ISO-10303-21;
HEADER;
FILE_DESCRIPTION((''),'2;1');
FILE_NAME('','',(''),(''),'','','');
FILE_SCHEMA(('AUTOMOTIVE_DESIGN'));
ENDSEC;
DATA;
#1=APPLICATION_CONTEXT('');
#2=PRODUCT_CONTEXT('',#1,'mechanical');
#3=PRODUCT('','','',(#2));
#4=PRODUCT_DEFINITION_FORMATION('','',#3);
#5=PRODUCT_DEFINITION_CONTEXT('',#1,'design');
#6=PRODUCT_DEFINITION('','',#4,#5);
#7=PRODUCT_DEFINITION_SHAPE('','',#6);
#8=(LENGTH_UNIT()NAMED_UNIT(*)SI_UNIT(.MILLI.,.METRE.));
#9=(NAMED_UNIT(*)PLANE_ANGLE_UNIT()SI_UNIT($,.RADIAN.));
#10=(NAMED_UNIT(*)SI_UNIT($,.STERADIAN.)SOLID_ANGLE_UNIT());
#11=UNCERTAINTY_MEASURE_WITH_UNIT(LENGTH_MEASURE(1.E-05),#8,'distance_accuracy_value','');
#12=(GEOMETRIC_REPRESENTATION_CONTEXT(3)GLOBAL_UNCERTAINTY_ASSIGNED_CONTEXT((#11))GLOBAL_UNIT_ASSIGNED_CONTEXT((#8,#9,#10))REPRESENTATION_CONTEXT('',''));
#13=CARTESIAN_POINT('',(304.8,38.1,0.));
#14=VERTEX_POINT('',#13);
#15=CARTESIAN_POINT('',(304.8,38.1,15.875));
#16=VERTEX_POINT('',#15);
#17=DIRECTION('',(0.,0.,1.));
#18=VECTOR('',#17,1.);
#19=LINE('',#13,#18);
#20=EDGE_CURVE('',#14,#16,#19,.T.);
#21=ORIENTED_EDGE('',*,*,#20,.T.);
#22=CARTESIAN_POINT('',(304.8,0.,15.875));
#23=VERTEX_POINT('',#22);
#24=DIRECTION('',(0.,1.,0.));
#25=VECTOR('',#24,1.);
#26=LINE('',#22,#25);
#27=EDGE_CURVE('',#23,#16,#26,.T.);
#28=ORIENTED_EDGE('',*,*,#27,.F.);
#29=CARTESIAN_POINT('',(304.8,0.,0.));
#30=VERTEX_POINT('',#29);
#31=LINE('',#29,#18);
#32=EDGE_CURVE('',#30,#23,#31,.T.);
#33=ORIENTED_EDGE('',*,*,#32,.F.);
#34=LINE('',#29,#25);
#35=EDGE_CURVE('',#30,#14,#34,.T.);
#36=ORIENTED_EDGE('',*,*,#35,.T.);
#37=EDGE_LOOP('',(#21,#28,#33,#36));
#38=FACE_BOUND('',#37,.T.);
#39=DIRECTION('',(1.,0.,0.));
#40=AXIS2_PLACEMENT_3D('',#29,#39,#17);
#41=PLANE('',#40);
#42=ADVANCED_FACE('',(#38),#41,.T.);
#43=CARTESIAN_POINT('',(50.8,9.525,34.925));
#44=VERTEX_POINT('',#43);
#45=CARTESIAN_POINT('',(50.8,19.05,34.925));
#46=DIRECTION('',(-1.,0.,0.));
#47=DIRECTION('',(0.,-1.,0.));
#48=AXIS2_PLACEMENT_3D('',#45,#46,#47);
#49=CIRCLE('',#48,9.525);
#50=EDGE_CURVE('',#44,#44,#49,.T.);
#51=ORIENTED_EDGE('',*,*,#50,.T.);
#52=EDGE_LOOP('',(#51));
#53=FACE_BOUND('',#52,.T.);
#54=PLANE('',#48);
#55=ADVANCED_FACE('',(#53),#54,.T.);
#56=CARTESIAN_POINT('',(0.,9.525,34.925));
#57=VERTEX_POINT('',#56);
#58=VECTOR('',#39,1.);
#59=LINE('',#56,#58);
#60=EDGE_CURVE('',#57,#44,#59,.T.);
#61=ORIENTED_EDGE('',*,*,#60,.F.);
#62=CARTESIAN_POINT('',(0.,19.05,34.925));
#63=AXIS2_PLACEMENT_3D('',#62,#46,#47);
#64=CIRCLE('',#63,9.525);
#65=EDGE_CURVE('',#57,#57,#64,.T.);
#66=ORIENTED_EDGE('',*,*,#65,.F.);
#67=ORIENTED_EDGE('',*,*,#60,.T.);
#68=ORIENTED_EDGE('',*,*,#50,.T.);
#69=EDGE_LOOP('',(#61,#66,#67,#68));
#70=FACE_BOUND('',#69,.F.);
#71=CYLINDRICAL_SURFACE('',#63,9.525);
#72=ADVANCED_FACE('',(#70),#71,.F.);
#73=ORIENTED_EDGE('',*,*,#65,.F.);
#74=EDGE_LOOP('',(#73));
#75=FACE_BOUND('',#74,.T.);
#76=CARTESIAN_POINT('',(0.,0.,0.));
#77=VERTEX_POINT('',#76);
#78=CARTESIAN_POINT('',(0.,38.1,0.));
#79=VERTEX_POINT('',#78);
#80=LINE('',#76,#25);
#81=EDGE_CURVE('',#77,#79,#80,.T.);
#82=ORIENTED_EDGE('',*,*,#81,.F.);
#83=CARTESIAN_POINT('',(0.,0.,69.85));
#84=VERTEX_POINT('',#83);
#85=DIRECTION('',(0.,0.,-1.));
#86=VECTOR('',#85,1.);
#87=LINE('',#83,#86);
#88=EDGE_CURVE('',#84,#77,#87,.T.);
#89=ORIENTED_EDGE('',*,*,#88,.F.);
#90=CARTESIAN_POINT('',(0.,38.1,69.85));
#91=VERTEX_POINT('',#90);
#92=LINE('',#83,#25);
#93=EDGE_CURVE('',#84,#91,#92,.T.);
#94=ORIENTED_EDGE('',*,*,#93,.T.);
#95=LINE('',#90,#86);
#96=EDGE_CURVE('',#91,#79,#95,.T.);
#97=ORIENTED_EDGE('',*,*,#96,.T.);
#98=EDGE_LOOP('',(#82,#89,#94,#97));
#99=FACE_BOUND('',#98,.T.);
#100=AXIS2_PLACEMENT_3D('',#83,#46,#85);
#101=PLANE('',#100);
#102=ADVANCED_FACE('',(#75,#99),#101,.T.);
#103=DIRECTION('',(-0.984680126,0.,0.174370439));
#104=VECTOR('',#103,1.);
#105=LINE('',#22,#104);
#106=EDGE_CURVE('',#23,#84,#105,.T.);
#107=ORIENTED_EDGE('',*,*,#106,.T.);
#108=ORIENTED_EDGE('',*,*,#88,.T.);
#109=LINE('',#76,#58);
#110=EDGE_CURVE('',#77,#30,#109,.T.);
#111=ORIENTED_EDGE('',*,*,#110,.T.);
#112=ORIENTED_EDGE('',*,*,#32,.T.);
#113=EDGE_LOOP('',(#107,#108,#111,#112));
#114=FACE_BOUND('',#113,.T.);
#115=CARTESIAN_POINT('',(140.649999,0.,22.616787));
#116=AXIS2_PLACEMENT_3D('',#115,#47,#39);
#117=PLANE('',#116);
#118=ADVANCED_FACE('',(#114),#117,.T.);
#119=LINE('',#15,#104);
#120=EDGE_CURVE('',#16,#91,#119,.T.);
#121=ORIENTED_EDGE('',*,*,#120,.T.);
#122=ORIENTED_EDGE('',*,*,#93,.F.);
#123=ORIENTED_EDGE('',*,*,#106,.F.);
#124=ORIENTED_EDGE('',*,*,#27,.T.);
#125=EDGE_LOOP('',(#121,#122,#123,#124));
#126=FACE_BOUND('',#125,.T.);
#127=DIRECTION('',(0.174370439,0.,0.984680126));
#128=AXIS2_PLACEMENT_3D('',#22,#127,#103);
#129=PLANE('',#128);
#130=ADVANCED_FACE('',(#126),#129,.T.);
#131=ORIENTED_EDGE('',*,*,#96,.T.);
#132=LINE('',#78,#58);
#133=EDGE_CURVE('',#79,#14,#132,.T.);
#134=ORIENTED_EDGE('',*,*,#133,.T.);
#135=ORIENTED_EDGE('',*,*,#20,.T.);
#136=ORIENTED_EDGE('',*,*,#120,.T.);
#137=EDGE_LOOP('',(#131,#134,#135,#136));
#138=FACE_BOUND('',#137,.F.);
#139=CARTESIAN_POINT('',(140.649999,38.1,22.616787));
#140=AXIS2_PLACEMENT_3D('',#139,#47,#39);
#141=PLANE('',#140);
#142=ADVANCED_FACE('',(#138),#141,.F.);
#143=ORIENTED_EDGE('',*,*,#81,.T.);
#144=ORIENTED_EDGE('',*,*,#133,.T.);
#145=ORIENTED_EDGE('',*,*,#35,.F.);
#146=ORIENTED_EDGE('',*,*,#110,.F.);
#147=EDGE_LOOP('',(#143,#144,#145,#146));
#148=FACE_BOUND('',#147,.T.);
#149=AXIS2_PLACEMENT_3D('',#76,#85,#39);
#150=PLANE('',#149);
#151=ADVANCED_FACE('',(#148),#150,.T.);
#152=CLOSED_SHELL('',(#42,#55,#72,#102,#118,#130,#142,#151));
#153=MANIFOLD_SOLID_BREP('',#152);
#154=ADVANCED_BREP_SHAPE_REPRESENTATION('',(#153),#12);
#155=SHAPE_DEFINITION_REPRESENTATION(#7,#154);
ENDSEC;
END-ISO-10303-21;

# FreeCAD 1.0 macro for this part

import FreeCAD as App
import Part
import Sketcher
from FreeCAD import Vector
Q = App.Units.Quantity


def add_polygon(sketch, points):
    """Adds a closed chain of lines whose ends are joined by coincident constraints."""
    first, n = sketch.GeometryCount, len(points)
    for a, b in zip(points, points[1:] + points[:1]):
        sketch.addGeometry(Part.LineSegment(App.Vector(*a, 0), App.Vector(*b, 0)), False)
    for i in range(n):
        sketch.addConstraint(Sketcher.Constraint("Coincident", first + i, 2, first + (i + 1) % n, 1))

doc = App.newDocument("Part")
body = doc.addObject("PartDesign::Body", "Body")

# Sketch on XZ plane
sketch1 = body.newObject("Sketcher::SketchObject", "Sketch")
sketch1.AttachmentSupport = (doc.getObject("XZ_Plane"), [""])
sketch1.MapMode = "FlatFace"
add_polygon(sketch1, [(0, 70), (0, 0), (305, 0), (305, 16)])  # lines 0-3
sketch1.addConstraint([
    Sketcher.Constraint("Vertical", 0),
    Sketcher.Constraint("Horizontal", 1),
    Sketcher.Constraint("Vertical", 2),
    Sketcher.Constraint("Coincident", 0, 2, -1, 1),
    Sketcher.Constraint("DistanceX", 1, 1, 1, 2, Q("12 in")),
    Sketcher.Constraint("DistanceY", 0, 2, 0, 1, Q("2.75 in")),
    Sketcher.Constraint("DistanceY", 2, 1, 2, 2, Q("0.625 in")),
])
pad1 = body.newObject("PartDesign::Pad", "Pad")
pad1.Profile = sketch1
pad1.Length = Q("1.5 in")
pad1.Reversed = True

# Sketch on YZ plane
sketch2 = body.newObject("Sketcher::SketchObject", "Sketch001")
sketch2.AttachmentSupport = (doc.getObject("YZ_Plane"), [""])
sketch2.MapMode = "FlatFace"
sketch2.addGeometry(Part.Circle(Vector(19, 35, 0), Vector(0, 0, 1), 10), False)
sketch2.addConstraint([
    Sketcher.Constraint("Diameter", 0, Q("0.75 in")),
    Sketcher.Constraint("DistanceX", -1, 1, 0, 3, Q("0.75 in")),
    Sketcher.Constraint("DistanceY", -1, 1, 0, 3, Q("1.375 in")),
])
pocket1 = body.newObject("PartDesign::Pocket", "Pocket")
pocket1.Profile = sketch2
pocket1.Length = Q("2 in")
pocket1.Reversed = True

doc.recompute()
